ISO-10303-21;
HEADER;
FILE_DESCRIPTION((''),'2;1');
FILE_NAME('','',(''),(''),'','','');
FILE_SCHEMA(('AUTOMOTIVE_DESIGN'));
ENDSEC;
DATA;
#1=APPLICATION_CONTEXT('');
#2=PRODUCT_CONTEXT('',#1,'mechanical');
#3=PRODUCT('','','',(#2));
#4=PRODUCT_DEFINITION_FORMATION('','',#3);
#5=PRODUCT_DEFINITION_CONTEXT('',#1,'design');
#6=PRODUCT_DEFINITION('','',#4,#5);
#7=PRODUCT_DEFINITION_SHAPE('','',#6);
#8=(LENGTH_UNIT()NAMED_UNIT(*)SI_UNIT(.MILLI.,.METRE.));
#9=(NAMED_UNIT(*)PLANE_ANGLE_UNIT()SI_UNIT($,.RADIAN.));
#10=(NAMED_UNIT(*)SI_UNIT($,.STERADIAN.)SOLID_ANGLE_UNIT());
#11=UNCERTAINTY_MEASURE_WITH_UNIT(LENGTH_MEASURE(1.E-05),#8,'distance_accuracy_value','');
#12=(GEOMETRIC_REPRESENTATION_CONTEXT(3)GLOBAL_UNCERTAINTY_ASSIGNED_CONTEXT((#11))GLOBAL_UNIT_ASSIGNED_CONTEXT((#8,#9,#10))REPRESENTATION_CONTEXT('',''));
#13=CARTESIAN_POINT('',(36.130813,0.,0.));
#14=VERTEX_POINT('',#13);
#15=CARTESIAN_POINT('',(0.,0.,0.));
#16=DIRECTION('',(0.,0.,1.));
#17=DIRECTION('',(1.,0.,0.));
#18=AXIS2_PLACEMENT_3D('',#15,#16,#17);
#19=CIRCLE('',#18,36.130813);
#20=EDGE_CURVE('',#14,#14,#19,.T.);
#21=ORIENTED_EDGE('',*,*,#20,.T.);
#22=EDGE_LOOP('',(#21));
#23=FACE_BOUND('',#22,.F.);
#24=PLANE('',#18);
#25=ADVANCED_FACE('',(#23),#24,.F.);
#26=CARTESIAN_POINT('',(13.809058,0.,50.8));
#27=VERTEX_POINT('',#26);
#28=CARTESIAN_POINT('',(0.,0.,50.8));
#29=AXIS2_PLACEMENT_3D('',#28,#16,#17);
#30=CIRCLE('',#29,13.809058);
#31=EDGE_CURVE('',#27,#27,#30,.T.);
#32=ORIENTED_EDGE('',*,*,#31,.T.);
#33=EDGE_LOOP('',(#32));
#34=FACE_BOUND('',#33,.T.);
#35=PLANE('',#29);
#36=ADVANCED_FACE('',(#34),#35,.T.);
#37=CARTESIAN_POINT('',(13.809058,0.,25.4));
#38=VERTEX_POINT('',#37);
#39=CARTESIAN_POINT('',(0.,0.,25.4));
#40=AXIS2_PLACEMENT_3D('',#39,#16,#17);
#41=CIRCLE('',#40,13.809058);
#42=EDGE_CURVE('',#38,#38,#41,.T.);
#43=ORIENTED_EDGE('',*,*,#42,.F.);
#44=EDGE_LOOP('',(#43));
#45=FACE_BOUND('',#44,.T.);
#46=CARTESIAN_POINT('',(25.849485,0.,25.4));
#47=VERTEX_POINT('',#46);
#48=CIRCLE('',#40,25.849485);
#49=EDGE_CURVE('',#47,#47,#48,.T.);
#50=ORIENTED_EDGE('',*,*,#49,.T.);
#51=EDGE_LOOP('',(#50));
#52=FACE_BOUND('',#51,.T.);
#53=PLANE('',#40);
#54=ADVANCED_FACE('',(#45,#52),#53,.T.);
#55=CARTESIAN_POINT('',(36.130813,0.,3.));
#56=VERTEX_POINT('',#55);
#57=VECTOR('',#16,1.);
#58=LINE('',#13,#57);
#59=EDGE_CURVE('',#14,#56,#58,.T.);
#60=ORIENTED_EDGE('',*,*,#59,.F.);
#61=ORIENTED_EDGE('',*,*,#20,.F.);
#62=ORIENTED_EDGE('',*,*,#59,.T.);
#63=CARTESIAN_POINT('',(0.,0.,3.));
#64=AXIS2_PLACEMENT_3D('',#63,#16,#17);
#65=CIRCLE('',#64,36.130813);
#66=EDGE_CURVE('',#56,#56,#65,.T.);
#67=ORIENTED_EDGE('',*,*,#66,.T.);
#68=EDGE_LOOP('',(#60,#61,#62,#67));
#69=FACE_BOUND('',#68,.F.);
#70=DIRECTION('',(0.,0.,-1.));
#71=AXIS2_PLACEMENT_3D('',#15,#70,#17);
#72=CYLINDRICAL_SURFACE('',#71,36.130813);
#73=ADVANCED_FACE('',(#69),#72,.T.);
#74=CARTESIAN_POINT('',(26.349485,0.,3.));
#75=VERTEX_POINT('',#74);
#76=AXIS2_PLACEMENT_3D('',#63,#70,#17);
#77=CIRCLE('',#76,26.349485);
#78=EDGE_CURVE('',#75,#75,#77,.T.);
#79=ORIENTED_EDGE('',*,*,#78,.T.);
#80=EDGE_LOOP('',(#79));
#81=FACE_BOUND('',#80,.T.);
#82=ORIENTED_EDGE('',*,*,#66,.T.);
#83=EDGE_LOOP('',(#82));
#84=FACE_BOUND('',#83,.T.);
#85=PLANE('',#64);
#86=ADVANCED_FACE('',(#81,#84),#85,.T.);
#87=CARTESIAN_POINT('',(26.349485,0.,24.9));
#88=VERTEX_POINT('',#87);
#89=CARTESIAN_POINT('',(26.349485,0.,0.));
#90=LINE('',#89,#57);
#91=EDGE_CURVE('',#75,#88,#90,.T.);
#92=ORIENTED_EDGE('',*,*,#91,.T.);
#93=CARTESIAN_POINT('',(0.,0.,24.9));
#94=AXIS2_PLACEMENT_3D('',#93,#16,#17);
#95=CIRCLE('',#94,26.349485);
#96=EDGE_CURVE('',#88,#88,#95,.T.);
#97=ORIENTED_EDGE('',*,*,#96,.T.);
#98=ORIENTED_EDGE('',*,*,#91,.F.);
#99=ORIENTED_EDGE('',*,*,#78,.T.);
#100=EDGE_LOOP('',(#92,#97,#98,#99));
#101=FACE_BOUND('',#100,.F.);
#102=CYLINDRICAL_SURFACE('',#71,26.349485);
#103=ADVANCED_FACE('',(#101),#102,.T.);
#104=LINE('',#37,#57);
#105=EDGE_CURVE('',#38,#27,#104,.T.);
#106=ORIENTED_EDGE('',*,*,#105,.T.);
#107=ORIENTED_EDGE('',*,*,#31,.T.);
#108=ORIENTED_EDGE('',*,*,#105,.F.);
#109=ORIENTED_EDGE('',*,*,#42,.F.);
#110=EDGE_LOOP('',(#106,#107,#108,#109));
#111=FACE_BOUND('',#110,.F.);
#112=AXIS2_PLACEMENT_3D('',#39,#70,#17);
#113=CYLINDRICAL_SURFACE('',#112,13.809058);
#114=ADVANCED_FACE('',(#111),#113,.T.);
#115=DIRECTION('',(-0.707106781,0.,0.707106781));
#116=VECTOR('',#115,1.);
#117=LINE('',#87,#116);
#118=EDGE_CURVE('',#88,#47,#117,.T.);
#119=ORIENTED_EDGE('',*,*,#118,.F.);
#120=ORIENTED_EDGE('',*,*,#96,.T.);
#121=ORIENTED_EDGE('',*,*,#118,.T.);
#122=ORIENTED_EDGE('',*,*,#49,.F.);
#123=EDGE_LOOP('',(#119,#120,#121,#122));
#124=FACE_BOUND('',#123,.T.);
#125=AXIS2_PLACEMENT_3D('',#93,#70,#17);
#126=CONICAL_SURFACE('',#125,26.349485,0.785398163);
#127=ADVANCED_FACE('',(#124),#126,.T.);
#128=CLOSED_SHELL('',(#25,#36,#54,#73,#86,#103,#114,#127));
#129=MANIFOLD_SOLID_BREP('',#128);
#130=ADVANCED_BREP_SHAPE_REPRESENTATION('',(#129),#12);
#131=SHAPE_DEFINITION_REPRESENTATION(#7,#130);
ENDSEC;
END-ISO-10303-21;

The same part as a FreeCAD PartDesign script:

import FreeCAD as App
import Part
import Sketcher

V = App.Vector


def edges_at(feature, points):
    """Names of the edges that pass closest to the given points."""
    edges = feature.Shape.Edges
    near = lambda p: min(range(len(edges)), key=lambda i: edges[i].distToShape(Part.Vertex(*p))[0])
    return sorted({f"Edge{near(p) + 1}" for p in points})

doc = App.newDocument("Part")
body = doc.addObject("PartDesign::Body", "Body")

# Sketch on XY plane
sketch1 = body.newObject("Sketcher::SketchObject", "Sketch")
sketch1.AttachmentSupport = (doc.getObject("XY_Plane"), [""])
sketch1.MapMode = "FlatFace"
sketch1.addGeometry(Part.Circle(V(0, 0, 0), V(0, 0, 1), 36), False)
sketch1.addConstraint([
    Sketcher.Constraint("Coincident", 0, 3, -1, 1),
    Sketcher.Constraint("Diameter", 0, 72.261626),
])
pad1 = body.newObject("PartDesign::Pad", "Pad")
pad1.Profile = sketch1
pad1.Length = 3

# Sketch on XY plane
sketch2 = body.newObject("Sketcher::SketchObject", "Sketch001")
sketch2.AttachmentSupport = (doc.getObject("XY_Plane"), [""])
sketch2.MapMode = "FlatFace"
sketch2.addGeometry(Part.Circle(V(0, 0, 0), V(0, 0, 1), 26), False)
sketch2.addConstraint([
    Sketcher.Constraint("Coincident", 0, 3, -1, 1),
    Sketcher.Constraint("Diameter", 0, 52.69897),
])
pad2 = body.newObject("PartDesign::Pad", "Pad001")
pad2.Profile = sketch2
pad2.Length = 25.4

# Sketch on XY plane
sketch3 = body.newObject("Sketcher::SketchObject", "Sketch002")
sketch3.AttachmentSupport = (doc.getObject("XY_Plane"), [""])
sketch3.MapMode = "FlatFace"
sketch3.AttachmentOffset = App.Placement(V(0, 0, 25.4), App.Rotation())
sketch3.addGeometry(Part.Circle(V(0, 0, 0), V(0, 0, 1), 14), False)
sketch3.addConstraint([
    Sketcher.Constraint("Coincident", 0, 3, -1, 1),
    Sketcher.Constraint("Diameter", 0, 27.618116),
])
pad3 = body.newObject("PartDesign::Pad", "Pad002")
pad3.Profile = sketch3
pad3.Length = 25.4
doc.recompute()

chamfer = body.newObject("PartDesign::Chamfer", "Chamfer")
chamfer.Base = (pad3, edges_at(pad3, [(-26.349, 0, 25.4)]))
chamfer.Size = 0.5

doc.recompute()
